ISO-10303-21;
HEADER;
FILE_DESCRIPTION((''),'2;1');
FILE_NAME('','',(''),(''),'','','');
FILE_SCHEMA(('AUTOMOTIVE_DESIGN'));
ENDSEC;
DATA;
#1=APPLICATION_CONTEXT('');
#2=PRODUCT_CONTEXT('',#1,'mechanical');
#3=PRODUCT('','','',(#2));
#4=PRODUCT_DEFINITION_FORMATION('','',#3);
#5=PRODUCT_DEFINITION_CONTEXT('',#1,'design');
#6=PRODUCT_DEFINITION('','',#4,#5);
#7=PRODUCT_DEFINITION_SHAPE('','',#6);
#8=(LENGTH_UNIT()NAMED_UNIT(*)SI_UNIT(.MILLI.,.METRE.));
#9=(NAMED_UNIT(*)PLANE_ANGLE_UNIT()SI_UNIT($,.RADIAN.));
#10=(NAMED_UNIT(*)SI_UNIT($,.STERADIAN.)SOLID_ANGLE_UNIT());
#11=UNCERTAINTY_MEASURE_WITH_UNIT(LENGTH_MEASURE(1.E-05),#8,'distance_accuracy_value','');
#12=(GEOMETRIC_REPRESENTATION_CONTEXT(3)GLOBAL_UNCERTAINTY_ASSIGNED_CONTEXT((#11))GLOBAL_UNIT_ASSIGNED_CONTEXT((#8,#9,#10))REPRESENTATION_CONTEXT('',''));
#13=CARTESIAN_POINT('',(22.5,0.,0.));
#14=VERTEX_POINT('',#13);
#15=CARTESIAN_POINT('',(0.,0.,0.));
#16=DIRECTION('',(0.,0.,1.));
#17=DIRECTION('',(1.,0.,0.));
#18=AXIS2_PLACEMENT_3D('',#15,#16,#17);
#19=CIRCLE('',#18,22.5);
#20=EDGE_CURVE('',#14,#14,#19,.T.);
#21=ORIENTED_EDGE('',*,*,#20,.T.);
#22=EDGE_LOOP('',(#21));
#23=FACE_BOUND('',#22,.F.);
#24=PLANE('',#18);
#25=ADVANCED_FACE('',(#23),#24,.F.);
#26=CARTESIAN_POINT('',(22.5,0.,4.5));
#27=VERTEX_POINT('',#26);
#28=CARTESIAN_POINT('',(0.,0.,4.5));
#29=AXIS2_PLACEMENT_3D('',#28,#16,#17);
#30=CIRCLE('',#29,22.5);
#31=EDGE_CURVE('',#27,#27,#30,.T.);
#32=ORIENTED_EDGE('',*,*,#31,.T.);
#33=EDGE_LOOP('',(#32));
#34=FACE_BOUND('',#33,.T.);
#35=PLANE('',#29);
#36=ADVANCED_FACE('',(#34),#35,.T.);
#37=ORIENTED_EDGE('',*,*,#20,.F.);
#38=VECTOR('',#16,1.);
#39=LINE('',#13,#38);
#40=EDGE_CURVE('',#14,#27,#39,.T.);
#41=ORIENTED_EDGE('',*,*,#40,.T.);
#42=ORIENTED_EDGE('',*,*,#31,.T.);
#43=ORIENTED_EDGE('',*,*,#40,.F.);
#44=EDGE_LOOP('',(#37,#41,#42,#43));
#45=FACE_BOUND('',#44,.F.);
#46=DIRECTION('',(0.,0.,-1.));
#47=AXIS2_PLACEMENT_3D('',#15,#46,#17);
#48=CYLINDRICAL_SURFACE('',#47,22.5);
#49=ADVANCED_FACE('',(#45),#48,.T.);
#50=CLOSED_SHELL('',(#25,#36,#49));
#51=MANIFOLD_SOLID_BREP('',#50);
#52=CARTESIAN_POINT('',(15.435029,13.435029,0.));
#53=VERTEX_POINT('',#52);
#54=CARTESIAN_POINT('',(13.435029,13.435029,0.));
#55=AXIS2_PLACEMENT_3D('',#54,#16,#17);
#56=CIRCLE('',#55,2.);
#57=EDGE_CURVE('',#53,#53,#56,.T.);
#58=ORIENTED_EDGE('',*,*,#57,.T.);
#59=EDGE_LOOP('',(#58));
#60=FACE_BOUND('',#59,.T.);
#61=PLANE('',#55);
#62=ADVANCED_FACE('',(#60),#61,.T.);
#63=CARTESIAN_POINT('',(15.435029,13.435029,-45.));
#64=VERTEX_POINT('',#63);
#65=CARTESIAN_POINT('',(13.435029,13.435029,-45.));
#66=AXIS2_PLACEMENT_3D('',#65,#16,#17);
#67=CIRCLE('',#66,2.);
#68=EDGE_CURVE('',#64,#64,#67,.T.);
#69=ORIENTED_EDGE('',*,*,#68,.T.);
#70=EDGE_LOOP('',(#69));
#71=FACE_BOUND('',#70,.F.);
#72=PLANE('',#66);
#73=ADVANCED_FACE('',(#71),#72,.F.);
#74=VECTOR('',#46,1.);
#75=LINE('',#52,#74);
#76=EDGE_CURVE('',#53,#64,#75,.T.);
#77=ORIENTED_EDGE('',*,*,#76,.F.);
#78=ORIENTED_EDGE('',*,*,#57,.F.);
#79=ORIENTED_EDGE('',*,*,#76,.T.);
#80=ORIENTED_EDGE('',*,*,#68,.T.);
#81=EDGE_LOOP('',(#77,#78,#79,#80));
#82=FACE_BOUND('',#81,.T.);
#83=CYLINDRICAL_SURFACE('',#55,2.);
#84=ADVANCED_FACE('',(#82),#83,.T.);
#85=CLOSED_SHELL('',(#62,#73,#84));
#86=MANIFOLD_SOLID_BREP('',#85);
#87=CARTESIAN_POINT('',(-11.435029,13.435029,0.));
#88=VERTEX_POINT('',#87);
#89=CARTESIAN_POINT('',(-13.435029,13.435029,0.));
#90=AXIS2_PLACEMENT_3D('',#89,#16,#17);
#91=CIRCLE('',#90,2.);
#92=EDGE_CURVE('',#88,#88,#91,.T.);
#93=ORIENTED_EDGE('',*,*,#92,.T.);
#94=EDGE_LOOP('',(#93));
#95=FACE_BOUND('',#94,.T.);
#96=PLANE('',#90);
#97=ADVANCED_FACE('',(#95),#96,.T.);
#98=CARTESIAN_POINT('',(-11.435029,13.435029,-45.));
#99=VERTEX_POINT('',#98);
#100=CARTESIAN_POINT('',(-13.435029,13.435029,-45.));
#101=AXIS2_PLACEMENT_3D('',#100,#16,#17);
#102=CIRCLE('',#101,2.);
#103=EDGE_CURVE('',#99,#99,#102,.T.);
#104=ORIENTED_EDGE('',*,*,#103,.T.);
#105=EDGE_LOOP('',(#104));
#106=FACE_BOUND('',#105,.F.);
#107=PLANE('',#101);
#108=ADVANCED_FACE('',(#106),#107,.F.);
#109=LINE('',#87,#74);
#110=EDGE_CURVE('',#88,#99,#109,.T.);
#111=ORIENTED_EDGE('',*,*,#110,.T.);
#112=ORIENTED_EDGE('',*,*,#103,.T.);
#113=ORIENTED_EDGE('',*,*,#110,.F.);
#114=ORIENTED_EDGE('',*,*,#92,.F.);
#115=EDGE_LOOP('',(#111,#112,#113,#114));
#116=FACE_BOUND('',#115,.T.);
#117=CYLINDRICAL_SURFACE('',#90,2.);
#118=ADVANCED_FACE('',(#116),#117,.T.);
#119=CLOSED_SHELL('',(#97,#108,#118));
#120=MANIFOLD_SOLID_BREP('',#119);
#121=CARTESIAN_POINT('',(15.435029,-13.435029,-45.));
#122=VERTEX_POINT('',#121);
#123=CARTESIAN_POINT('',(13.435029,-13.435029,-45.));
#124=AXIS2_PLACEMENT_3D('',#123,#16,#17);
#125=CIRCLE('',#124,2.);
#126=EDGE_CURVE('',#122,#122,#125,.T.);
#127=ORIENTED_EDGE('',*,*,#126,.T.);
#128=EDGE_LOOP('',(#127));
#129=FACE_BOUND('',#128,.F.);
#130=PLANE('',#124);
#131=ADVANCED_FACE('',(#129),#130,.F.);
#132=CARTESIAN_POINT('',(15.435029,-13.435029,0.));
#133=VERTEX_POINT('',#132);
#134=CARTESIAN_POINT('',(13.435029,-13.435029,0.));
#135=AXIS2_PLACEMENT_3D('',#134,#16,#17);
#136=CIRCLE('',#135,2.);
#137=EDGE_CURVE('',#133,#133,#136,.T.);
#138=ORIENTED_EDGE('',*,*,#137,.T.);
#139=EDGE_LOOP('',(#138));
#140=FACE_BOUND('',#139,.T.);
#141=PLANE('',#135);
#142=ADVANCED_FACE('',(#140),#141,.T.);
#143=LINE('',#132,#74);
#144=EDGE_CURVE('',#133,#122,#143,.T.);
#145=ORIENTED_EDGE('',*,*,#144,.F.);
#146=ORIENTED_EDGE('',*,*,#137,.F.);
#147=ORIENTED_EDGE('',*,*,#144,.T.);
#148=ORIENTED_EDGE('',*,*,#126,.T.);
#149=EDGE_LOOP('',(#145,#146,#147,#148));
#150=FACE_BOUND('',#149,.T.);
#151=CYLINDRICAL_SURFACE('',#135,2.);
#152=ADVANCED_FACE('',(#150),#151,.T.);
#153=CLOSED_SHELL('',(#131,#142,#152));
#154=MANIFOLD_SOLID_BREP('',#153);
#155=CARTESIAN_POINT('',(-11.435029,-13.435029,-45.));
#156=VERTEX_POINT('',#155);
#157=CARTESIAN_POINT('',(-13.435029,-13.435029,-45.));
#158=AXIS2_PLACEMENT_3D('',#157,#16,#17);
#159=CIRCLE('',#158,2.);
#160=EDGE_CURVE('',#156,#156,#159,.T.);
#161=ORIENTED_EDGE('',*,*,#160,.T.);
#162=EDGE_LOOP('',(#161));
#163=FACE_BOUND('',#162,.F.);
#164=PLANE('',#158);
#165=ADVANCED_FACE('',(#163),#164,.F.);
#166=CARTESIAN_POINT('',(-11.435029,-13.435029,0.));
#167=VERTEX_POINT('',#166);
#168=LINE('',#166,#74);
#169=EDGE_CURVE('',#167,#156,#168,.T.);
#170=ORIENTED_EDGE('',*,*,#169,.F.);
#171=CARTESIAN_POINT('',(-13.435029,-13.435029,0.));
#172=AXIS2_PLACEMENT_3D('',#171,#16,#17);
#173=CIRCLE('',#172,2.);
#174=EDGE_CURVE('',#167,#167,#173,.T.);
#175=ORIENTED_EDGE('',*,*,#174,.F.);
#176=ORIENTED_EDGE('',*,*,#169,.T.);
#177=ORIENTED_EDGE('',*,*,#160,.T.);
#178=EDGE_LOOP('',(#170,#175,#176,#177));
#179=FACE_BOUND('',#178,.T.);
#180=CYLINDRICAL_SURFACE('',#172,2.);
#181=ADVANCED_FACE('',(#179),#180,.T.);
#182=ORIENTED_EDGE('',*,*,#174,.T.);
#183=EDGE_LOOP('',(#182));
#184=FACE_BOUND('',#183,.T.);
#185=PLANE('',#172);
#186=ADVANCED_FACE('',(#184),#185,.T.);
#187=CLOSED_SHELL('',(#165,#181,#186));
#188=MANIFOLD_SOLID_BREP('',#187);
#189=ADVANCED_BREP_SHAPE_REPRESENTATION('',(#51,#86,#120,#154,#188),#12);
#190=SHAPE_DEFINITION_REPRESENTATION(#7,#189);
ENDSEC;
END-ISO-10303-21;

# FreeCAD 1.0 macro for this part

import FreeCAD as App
import Part
import Sketcher
Q = App.Units.Quantity

doc = App.newDocument("Part")
params = doc.addObject("Spreadsheet::Sheet", "Params")
for row, (alias, value) in enumerate([
    ("sketch1_diameter", "45 mm"),
    ("pad1_length", "4.5 mm"),
    ("sketch2_diameter", "4 mm"),
    ("pad2_length", "45 mm"),
], start=1):
    params.set(f"A{row}", alias)
    params.set(f"B{row}", "=" + value)
    params.setAlias(f"B{row}", alias)

body = doc.addObject("PartDesign::Body", "Body")

sketch1 = body.newObject("Sketcher::SketchObject", "Sketch")
sketch1.AttachmentSupport = (doc.getObject("XY_Plane"), [""])
sketch1.MapMode = "FlatFace"
sketch1.addGeometry(Part.Circle(App.Vector(0, 0, 0), App.Vector(0, 0, 1), 22.5), False)
sketch1.addConstraint(Sketcher.Constraint("Coincident", 0, 3, -1, 1))
sketch1.addConstraint(Sketcher.Constraint("Diameter", 0, Q("45 mm")))
sketch1.setExpression("Constraints[1]", "Params.sketch1_diameter")
pad1 = body.newObject("PartDesign::Pad", "Pad")
pad1.Profile = sketch1
pad1.setExpression("Length", "Params.pad1_length")
body2 = doc.addObject("PartDesign::Body", "Body001")
body2.AllowCompound = True

sketch2 = body2.newObject("Sketcher::SketchObject", "Sketch001")
sketch2.AttachmentSupport = (doc.getObject("XY_Plane001"), [""])
sketch2.MapMode = "FlatFace"
sketch2.addGeometry(Part.Circle(App.Vector(-13.435029, -13.435029, 0), App.Vector(0, 0, 1), 2), False)
sketch2.addGeometry(Part.Circle(App.Vector(13.435029, -13.435029, 0), App.Vector(0, 0, 1), 2), False)
sketch2.addGeometry(Part.Circle(App.Vector(-13.435029, 13.435029, 0), App.Vector(0, 0, 1), 2), False)
sketch2.addGeometry(Part.Circle(App.Vector(13.435029, 13.435029, 0), App.Vector(0, 0, 1), 2), False)
sketch2.addConstraint(Sketcher.Constraint("Equal", 0, 1))
sketch2.addConstraint(Sketcher.Constraint("Equal", 1, 2))
sketch2.addConstraint(Sketcher.Constraint("Equal", 2, 3))
sketch2.addConstraint(Sketcher.Constraint("Symmetric", 1, 3, 2, 3, -1, 1))
sketch2.addConstraint(Sketcher.Constraint("Symmetric", 0, 3, 3, 3, -1, 1))
sketch2.addConstraint(Sketcher.Constraint("Symmetric", 0, 3, 1, 3, -2))
sketch2.addConstraint(Sketcher.Constraint("Diameter", 0, Q("4 mm")))
sketch2.addConstraint(Sketcher.Constraint("DistanceX", 0, 3, -1, 1, Q("13.435029 mm")))
sketch2.addConstraint(Sketcher.Constraint("DistanceY", 0, 3, -1, 1, Q("13.435029 mm")))
sketch2.setExpression("Constraints[6]", "Params.sketch2_diameter")
pad2 = body2.newObject("PartDesign::Pad", "Pad001")
pad2.Profile = sketch2
pad2.setExpression("Length", "Params.pad2_length")
pad2.Reversed = True

doc.recompute()
